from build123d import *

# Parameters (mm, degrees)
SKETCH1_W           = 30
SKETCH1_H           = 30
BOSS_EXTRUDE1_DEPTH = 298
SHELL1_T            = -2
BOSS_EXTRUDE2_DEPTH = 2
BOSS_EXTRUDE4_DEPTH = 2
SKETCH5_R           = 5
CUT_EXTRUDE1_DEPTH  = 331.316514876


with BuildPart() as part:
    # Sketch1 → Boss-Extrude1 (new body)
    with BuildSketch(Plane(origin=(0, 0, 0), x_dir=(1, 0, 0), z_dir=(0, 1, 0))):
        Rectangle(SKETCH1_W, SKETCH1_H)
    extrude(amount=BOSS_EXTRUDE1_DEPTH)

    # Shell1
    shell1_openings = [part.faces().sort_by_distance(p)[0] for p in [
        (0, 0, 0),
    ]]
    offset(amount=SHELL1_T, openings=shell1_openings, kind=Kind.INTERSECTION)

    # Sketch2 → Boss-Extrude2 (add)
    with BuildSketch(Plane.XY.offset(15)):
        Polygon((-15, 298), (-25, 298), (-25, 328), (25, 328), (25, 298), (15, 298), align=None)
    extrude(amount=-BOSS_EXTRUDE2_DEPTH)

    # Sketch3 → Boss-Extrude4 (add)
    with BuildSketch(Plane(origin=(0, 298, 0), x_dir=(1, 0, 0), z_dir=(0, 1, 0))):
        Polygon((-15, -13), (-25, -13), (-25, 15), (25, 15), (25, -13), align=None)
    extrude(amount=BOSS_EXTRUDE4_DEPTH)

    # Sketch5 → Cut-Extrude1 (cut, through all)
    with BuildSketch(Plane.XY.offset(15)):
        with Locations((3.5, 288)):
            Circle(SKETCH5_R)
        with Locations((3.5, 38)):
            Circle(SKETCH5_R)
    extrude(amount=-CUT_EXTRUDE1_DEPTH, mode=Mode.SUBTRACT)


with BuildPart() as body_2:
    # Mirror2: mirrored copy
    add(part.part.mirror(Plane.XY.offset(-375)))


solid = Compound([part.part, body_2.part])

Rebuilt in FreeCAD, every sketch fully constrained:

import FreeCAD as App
import Part
import Sketcher
from FreeCAD import Vector


def faces_at(feature, points):
    """Names of the faces that lie closest to the given points."""
    faces = feature.Shape.Faces
    near = lambda p: min(range(len(faces)), key=lambda i: faces[i].distToShape(Part.Vertex(*p))[0])
    return sorted({f"Face{near(p) + 1}" for p in points})


def add_polygon(sketch, points):
    """Adds a closed chain of lines whose ends are joined by coincident constraints."""
    first, n = sketch.GeometryCount, len(points)
    for a, b in zip(points, points[1:] + points[:1]):
        sketch.addGeometry(Part.LineSegment(App.Vector(*a, 0), App.Vector(*b, 0)), False)
    for i in range(n):
        sketch.addConstraint(Sketcher.Constraint("Coincident", first + i, 2, first + (i + 1) % n, 1))

doc = App.newDocument("Part")
params = doc.addObject("Spreadsheet::Sheet", "Params")
for row, (alias, value) in enumerate([
    ("sketch1_width", "30 mm"),
    ("pad1_length", "298 mm"),
    ("thickness_wall", "2 mm"),
    ("sketch2_width", "50 mm"),
    ("sketch2_height", "30 mm"),
    ("pad2_length", "2 mm"),
    ("sketch3_width", "50 mm"),
    ("sketch3_height", "28 mm"),
    ("pad3_length", "2 mm"),
    ("sketch4_diameter", "10 mm"),
], start=1):
    params.set(f"A{row}", alias)
    params.set(f"B{row}", "=" + value)
    params.setAlias(f"B{row}", alias)

body = doc.addObject("PartDesign::Body", "Body")

# Sketch on XZ plane
sketch1 = body.newObject("Sketcher::SketchObject", "Sketch")
sketch1.AttachmentSupport = (doc.getObject("XZ_Plane"), [""])
sketch1.MapMode = "FlatFace"
add_polygon(sketch1, [(-15, -15), (-15, 15), (15, 15), (15, -15)])  # lines 0-3
sketch1.addConstraint([
    Sketcher.Constraint("Vertical", 0),
    Sketcher.Constraint("Horizontal", 1),
    Sketcher.Constraint("Vertical", 2),
    Sketcher.Constraint("Horizontal", 3),
    Sketcher.Constraint("Symmetric", 0, 2, 2, 2, -1, 1),
    Sketcher.Constraint("Equal", 3, 0),
    Sketcher.Constraint("DistanceX", 1, 1, 1, 2, 30.0),
])
sketch1.setExpression("Constraints[10]", "Params.sketch1_width")
pad1 = body.newObject("PartDesign::Pad", "Pad")
pad1.Profile = sketch1
pad1.setExpression("Length", "Params.pad1_length")
pad1.Reversed = True
doc.recompute()

thickness = body.newObject("PartDesign::Thickness", "Thickness")
thickness.Base = (pad1, faces_at(pad1, [(0, 0, 0)]))
thickness.setExpression("Value", "Params.thickness_wall")
thickness.Reversed = True
thickness.Join = "Intersection"

# Sketch on XY plane
sketch2 = body.newObject("Sketcher::SketchObject", "Sketch001")
sketch2.AttachmentSupport = (doc.getObject("XY_Plane"), [""])
sketch2.MapMode = "FlatFace"
sketch2.AttachmentOffset = App.Placement(Vector(0, 0, 15), App.Rotation())
add_polygon(sketch2, [(-25, 298), (25, 298), (25, 328), (-25, 328)])  # lines 0-3
sketch2.addConstraint([
    Sketcher.Constraint("Horizontal", 0),
    Sketcher.Constraint("Vertical", 1),
    Sketcher.Constraint("Horizontal", 2),
    Sketcher.Constraint("Vertical", 3),
    Sketcher.Constraint("DistanceX", 0, 1, 0, 2, 50.0),
    Sketcher.Constraint("DistanceY", 1, 1, 1, 2, 30.0),
    Sketcher.Constraint("DistanceX", -1, 1, 0, 2, 25.0),
    Sketcher.Constraint("DistanceY", -1, 1, 0, 2, 298.0),
])
sketch2.setExpression("Constraints[8]", "Params.sketch2_width")
sketch2.setExpression("Constraints[9]", "Params.sketch2_height")
pad2 = body.newObject("PartDesign::Pad", "Pad001")
pad2.Profile = sketch2
pad2.setExpression("Length", "Params.pad2_length")
pad2.Reversed = True

# Sketch on XZ plane
sketch3 = body.newObject("Sketcher::SketchObject", "Sketch002")
sketch3.AttachmentSupport = (doc.getObject("XZ_Plane"), [""])
sketch3.MapMode = "FlatFace"
sketch3.AttachmentOffset = App.Placement(Vector(0, 0, -298), App.Rotation())
add_polygon(sketch3, [(-25, 13), (25, 13), (25, -15), (-25, -15)])  # lines 0-3
sketch3.addConstraint([
    Sketcher.Constraint("Horizontal", 0),
    Sketcher.Constraint("Vertical", 1),
    Sketcher.Constraint("Horizontal", 2),
    Sketcher.Constraint("Vertical", 3),
    Sketcher.Constraint("DistanceX", 0, 1, 0, 2, 50.0),
    Sketcher.Constraint("DistanceY", 1, 2, 1, 1, 28.0),
    Sketcher.Constraint("DistanceX", -1, 1, 0, 2, 25.0),
    Sketcher.Constraint("DistanceY", -1, 1, 0, 2, 13.0),
])
sketch3.setExpression("Constraints[8]", "Params.sketch3_width")
sketch3.setExpression("Constraints[9]", "Params.sketch3_height")
pad3 = body.newObject("PartDesign::Pad", "Pad002")
pad3.Profile = sketch3
pad3.setExpression("Length", "Params.pad3_length")
pad3.Reversed = True

# Sketch on XY plane
sketch4 = body.newObject("Sketcher::SketchObject", "Sketch003")
sketch4.AttachmentSupport = (doc.getObject("XY_Plane"), [""])
sketch4.MapMode = "FlatFace"
sketch4.AttachmentOffset = App.Placement(Vector(0, 0, 15), App.Rotation())
sketch4.addGeometry([
    Part.Circle(Vector(4, 288, 0), Vector(0, 0, 1), 5),
    Part.Circle(Vector(4, 38, 0), Vector(0, 0, 1), 5),
], False)
sketch4.addConstraint([
    Sketcher.Constraint("Equal", 0, 1),
    Sketcher.Constraint("Vertical", 0, 3, 1, 3),
    Sketcher.Constraint("Diameter", 0, 10.0),
    Sketcher.Constraint("DistanceY", -1, 1, 0, 3, 288.0),
    Sketcher.Constraint("DistanceY", -1, 1, 1, 3, 38.0),
    Sketcher.Constraint("DistanceX", -1, 1, 0, 3, 3.5),
])
sketch4.setExpression("Constraints[2]", "Params.sketch4_diameter")
pocket1 = body.newObject("PartDesign::Pocket", "Pocket")
pocket1.Profile = sketch4
pocket1.Type = "ThroughAll"
body2 = doc.addObject("PartDesign::Body", "Body001")
doc.recompute()

mirroring = doc.addObject("Part::Mirroring", "Mirroring")
mirroring.Source = body
mirroring.Base = Vector(0, 0, -375)
mirroring.Normal = Vector(0, 0, 1)
body2.BaseFeature = mirroring
doc.recompute()
mirroring.Visibility = False

doc.recompute()
